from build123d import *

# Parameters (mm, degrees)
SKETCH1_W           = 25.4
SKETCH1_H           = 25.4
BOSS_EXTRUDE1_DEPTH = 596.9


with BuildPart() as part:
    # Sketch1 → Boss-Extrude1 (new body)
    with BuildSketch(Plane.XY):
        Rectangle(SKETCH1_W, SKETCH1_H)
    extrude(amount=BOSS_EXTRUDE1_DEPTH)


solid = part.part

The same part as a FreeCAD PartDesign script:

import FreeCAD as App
import Part
import Sketcher

V = App.Vector
Q = App.Units.Quantity


def add_polygon(sketch, points):
    """Adds a closed chain of lines whose ends are joined by coincident constraints."""
    first, n = sketch.GeometryCount, len(points)
    for a, b in zip(points, points[1:] + points[:1]):
        sketch.addGeometry(Part.LineSegment(App.Vector(*a, 0), App.Vector(*b, 0)), False)
    for i in range(n):
        sketch.addConstraint(Sketcher.Constraint("Coincident", first + i, 2, first + (i + 1) % n, 1))

doc = App.newDocument("Part")
params = doc.addObject("Spreadsheet::Sheet", "Params")
for row, (alias, value) in enumerate([
    ("sketch1_width", "1 in"),
    ("pad1_length", "23.5 in"),
], start=1):
    params.set(f"A{row}", alias)
    params.set(f"B{row}", "=" + value)
    params.setAlias(f"B{row}", alias)

body = doc.addObject("PartDesign::Body", "Body")

sketch1 = body.newObject("Sketcher::SketchObject", "Sketch")
sketch1.AttachmentSupport = (doc.getObject("XY_Plane"), [""])
sketch1.MapMode = "FlatFace"
add_polygon(sketch1, [(-12.7, 12.7), (-12.7, -12.7), (12.7, -12.7), (12.7, 12.7)])
sketch1.addConstraint([
    Sketcher.Constraint("Vertical", 0),
    Sketcher.Constraint("Horizontal", 1),
    Sketcher.Constraint("Vertical", 2),
    Sketcher.Constraint("Horizontal", 3),
    Sketcher.Constraint("Symmetric", 0, 2, 2, 2, -1, 1),
    Sketcher.Constraint("Equal", 3, 0),
    Sketcher.Constraint("DistanceX", 1, 1, 1, 2, Q("1 in")),
])
sketch1.setExpression("Constraints[10]", "Params.sketch1_width")
pad1 = body.newObject("PartDesign::Pad", "Pad")
pad1.Profile = sketch1
pad1.setExpression("Length", "Params.pad1_length")

doc.recompute()
